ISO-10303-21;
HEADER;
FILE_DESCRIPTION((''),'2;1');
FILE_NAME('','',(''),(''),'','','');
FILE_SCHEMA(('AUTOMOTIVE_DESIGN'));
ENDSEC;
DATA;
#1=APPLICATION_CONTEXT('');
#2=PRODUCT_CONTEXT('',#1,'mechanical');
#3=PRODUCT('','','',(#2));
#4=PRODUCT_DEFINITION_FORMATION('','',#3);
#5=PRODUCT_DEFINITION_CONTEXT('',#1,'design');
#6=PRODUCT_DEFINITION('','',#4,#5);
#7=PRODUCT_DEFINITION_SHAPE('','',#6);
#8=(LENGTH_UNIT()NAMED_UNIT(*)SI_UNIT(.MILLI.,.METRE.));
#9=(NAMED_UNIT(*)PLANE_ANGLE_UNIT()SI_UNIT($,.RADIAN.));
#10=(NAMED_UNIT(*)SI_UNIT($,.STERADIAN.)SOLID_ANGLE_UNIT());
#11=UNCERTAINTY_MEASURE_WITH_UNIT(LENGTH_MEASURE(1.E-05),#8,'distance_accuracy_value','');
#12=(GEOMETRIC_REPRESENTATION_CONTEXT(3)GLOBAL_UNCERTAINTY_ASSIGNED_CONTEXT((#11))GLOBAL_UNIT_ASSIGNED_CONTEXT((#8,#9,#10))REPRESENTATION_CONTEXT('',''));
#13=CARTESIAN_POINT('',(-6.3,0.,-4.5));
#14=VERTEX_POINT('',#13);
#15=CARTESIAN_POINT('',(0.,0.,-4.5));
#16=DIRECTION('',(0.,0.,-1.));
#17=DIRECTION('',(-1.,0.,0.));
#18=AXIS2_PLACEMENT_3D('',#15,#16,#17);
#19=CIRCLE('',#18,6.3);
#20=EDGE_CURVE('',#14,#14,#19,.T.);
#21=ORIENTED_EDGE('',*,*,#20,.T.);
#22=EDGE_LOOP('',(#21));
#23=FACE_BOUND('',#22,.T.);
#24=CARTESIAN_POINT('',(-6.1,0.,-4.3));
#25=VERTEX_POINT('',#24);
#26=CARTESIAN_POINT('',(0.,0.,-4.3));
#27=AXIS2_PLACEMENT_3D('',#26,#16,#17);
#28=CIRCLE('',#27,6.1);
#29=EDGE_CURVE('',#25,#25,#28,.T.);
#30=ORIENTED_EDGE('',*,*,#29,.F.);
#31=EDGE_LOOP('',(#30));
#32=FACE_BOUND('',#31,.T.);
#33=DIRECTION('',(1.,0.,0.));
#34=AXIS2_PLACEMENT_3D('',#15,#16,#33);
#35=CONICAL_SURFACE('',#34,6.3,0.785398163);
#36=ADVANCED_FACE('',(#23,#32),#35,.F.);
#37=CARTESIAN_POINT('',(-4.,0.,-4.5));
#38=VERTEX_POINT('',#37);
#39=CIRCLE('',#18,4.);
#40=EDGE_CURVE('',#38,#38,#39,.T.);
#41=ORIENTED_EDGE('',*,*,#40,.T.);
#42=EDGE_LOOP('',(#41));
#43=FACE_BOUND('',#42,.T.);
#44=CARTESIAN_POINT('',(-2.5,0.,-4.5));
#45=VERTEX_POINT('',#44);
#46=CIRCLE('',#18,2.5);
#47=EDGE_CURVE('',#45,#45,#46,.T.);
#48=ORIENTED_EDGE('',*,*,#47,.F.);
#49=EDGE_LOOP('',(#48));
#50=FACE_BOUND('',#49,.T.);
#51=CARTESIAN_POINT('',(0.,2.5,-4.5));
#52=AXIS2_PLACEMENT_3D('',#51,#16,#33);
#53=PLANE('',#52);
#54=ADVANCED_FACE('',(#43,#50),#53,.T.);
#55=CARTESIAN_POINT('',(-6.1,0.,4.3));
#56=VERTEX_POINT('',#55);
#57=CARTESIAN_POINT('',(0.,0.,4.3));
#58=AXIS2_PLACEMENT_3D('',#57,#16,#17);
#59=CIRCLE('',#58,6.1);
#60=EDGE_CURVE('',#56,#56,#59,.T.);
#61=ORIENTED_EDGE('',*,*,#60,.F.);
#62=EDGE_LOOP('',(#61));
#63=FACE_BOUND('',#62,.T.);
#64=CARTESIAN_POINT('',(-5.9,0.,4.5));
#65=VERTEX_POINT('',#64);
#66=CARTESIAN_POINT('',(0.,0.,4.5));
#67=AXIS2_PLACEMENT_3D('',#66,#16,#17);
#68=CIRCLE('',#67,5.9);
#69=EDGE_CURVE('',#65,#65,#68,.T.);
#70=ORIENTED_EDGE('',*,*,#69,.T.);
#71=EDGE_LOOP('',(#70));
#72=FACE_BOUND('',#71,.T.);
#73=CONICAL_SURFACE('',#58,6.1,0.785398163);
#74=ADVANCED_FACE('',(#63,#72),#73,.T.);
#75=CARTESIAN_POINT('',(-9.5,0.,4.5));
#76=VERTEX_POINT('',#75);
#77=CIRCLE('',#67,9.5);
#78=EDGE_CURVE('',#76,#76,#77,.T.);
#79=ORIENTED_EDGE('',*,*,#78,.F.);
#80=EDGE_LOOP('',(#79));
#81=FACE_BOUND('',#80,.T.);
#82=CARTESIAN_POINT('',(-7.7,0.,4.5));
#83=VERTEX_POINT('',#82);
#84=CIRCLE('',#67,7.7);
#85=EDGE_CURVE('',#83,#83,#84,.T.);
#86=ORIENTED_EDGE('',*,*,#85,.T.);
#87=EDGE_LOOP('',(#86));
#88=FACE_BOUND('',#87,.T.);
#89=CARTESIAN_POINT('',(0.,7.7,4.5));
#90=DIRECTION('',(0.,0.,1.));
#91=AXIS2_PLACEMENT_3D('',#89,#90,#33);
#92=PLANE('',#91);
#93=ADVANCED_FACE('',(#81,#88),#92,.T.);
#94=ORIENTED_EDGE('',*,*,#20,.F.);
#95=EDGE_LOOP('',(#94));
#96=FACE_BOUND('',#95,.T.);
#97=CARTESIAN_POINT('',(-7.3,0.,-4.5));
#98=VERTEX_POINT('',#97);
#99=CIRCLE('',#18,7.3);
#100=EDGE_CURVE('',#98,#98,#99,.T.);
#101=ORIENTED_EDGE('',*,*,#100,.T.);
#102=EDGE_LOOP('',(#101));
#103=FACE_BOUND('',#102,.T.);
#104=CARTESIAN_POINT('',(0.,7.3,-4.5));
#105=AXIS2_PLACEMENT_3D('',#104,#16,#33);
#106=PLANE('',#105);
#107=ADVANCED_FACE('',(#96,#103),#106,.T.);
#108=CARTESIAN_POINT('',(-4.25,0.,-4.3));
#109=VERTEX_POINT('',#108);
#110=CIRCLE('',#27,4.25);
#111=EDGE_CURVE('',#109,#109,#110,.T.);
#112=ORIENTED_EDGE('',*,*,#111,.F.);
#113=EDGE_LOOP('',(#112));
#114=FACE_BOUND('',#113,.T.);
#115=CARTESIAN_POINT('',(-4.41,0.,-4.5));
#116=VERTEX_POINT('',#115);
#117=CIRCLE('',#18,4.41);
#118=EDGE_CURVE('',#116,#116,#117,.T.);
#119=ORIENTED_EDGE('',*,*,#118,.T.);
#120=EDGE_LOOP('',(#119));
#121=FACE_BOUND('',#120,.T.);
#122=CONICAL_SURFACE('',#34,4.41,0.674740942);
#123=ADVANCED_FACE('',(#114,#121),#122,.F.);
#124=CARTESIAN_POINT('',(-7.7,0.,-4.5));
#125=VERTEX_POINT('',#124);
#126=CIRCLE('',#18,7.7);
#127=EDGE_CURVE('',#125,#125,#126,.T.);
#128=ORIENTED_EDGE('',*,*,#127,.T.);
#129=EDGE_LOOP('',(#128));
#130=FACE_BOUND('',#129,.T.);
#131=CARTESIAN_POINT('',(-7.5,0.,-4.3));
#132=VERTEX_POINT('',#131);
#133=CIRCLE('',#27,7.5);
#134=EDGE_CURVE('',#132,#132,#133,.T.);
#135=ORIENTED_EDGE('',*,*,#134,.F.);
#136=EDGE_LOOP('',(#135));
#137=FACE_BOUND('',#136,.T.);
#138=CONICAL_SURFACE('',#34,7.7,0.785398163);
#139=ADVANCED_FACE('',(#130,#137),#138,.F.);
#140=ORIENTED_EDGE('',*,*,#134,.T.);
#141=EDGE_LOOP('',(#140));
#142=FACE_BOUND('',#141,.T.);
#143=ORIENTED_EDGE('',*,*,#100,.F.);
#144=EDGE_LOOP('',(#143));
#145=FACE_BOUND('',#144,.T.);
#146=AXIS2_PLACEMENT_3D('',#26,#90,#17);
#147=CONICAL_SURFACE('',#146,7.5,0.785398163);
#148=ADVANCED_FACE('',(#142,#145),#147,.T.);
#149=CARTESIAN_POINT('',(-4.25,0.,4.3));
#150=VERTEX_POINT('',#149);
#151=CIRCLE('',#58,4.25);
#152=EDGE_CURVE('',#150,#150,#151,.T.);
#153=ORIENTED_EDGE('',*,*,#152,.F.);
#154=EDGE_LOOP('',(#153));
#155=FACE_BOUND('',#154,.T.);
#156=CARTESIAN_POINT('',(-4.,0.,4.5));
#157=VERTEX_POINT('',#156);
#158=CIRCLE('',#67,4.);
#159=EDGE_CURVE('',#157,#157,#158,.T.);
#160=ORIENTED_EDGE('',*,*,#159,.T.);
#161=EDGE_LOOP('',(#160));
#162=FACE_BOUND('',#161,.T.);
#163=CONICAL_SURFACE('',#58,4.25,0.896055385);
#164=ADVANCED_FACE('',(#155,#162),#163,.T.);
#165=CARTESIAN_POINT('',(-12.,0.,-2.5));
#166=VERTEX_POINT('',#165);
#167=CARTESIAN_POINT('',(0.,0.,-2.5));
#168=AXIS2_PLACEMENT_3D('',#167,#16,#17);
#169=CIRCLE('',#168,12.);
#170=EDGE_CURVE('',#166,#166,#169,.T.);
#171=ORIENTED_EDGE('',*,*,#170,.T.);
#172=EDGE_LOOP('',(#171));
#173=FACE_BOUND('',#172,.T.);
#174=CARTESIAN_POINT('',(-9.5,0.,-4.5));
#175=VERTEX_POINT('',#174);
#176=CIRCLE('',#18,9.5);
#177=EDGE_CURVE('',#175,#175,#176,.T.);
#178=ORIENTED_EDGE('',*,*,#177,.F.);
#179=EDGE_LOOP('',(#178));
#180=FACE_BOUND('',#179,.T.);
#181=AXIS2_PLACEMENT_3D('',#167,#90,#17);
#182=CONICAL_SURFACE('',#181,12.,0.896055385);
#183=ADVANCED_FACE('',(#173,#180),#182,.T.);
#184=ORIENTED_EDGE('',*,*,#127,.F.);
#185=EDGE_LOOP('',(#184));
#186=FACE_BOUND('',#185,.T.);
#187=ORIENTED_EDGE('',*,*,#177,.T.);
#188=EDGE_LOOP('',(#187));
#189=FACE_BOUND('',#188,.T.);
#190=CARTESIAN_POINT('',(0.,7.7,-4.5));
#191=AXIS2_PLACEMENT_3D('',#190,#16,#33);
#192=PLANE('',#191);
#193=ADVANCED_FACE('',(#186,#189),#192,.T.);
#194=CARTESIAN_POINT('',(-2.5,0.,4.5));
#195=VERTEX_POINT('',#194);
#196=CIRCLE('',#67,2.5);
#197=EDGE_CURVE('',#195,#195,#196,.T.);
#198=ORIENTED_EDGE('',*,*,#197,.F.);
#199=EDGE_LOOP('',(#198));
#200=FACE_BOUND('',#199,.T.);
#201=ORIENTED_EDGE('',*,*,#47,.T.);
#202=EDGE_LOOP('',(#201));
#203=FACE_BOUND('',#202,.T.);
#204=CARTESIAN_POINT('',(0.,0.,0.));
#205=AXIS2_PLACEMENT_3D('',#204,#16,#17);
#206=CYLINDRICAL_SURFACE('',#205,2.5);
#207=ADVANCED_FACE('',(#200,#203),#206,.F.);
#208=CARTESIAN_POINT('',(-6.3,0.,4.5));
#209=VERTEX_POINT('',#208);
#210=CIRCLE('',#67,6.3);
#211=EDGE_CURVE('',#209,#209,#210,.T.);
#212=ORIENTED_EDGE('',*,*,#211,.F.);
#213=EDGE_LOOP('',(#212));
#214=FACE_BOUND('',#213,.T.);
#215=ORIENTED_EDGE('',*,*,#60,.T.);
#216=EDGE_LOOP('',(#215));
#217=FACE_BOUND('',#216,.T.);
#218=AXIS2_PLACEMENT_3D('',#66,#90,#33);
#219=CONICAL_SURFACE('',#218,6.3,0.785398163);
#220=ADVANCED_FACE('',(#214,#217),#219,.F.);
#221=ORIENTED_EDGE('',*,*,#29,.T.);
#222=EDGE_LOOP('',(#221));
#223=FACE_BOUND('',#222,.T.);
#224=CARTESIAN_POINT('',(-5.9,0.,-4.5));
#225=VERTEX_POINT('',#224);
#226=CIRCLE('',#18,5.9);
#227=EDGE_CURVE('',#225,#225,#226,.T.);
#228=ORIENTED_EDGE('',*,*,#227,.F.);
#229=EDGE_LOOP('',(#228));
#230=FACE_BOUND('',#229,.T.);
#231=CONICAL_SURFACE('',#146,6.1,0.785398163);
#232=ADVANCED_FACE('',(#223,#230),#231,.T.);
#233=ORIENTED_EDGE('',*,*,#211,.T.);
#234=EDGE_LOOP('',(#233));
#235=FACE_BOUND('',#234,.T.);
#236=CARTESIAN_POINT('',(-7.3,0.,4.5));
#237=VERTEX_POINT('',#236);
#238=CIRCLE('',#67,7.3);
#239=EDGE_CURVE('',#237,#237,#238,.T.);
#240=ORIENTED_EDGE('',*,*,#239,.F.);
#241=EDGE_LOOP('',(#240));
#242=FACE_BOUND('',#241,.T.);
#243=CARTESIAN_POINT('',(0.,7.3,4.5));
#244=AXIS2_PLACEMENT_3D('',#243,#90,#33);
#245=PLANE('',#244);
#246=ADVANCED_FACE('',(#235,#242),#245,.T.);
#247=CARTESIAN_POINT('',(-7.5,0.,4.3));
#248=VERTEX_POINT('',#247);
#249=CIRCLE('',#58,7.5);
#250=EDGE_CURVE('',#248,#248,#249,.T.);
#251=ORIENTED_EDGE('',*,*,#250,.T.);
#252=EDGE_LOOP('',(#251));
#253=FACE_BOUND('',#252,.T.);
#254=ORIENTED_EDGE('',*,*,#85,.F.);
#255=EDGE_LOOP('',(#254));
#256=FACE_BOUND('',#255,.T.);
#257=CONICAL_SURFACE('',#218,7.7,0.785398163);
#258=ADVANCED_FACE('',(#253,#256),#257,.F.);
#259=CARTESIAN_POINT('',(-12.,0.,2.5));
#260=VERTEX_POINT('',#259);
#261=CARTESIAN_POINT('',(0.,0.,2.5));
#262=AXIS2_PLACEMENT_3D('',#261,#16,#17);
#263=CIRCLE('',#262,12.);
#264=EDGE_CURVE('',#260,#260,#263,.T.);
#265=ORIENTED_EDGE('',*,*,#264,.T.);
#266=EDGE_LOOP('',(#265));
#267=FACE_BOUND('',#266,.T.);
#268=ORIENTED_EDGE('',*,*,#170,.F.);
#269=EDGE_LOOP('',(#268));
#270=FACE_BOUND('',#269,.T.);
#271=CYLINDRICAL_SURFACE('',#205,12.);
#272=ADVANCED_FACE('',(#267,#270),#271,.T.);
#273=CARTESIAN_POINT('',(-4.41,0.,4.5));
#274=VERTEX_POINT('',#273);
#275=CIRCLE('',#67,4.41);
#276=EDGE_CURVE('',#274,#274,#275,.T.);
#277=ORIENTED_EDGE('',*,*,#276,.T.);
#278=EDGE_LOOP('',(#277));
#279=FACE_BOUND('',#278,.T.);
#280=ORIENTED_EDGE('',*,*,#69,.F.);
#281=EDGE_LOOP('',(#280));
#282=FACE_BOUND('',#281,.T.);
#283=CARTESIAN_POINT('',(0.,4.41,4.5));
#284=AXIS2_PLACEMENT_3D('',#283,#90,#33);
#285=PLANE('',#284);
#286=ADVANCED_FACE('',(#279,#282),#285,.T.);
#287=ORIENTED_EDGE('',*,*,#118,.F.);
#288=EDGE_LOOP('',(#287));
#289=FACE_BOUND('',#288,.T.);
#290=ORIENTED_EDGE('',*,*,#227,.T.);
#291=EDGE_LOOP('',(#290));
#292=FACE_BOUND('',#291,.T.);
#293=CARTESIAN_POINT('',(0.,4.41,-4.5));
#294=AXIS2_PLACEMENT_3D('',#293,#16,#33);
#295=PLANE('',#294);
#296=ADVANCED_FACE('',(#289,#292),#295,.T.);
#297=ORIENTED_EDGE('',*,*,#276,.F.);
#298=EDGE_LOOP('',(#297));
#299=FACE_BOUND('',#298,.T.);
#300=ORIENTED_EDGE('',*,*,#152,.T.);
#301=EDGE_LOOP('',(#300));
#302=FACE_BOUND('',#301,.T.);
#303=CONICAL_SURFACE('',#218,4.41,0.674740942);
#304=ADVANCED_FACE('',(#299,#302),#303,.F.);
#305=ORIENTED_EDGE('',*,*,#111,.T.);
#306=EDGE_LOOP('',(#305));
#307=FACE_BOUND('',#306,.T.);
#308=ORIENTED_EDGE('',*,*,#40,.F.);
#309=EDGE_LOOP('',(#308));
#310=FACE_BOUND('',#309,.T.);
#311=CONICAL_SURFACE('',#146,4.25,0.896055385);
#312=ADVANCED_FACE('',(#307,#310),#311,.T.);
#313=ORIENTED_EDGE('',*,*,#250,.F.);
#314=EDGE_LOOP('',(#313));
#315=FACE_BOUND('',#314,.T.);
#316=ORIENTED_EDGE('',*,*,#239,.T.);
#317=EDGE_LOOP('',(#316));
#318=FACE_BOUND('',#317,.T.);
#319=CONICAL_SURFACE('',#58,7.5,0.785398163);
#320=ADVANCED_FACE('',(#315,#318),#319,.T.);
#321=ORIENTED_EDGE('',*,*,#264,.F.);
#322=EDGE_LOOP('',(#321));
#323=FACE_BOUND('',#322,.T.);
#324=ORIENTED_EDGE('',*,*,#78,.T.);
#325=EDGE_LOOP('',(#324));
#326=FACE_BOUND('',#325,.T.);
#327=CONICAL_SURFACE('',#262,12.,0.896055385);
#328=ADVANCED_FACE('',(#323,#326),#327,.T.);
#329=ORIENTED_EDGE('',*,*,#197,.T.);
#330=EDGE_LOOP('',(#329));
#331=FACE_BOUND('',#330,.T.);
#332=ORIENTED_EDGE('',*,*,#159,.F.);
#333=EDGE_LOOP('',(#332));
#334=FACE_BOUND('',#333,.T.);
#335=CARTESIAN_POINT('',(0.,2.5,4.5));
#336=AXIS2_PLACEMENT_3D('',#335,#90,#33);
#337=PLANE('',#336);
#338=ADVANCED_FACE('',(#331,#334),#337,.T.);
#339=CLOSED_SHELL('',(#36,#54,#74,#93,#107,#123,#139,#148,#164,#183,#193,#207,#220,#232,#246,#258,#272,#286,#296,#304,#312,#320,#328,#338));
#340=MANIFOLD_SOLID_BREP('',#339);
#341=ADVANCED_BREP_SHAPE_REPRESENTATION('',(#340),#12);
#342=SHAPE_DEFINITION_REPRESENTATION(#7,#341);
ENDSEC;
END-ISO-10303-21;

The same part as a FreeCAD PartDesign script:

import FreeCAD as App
import Part
import Sketcher
from FreeCAD import Vector


def add_polygon(sketch, points):
    """Adds a closed chain of lines whose ends are joined by coincident constraints."""
    first, n = sketch.GeometryCount, len(points)
    for a, b in zip(points, points[1:] + points[:1]):
        sketch.addGeometry(Part.LineSegment(App.Vector(*a, 0), App.Vector(*b, 0)), False)
    for i in range(n):
        sketch.addConstraint(Sketcher.Constraint("Coincident", first + i, 2, first + (i + 1) % n, 1))

doc = App.newDocument("Part")
body = doc.addObject("PartDesign::Body", "Body")

# Sketch on YZ plane
sketch1 = doc.addObject("Sketcher::SketchObject", "Sketch")
body.addObject(sketch1)
sketch1.AttachmentSupport = (doc.YZ_Plane, [""])
sketch1.MapMode = "FlatFace"
add_polygon(sketch1, [(7.3, 4.5), (6.3, 4.5), (6.1, 4.3), (5.9, 4.5), (4.41, 4.5), (4.25, 4.3), (4, 4.5), (2.5, 4.5), (2.5, 0), (12, 0), (12, 2.5), (9.5, 4.5), (7.7, 4.5), (7.5, 4.3)])  # lines 0-13
sketch1.addConstraint(Sketcher.Constraint("Horizontal", 0))
sketch1.addConstraint(Sketcher.Constraint("Horizontal", 3))
sketch1.addConstraint(Sketcher.Constraint("Horizontal", 6))
sketch1.addConstraint(Sketcher.Constraint("Vertical", 7))
sketch1.addConstraint(Sketcher.Constraint("Horizontal", 8))
sketch1.addConstraint(Sketcher.Constraint("Vertical", 9))
sketch1.addConstraint(Sketcher.Constraint("Horizontal", 11))
sketch1.addConstraint(Sketcher.Constraint("PointOnObject", 7, 2, -1))
sketch1.addConstraint(Sketcher.Constraint("Perpendicular", 1, 2))
sketch1.addConstraint(Sketcher.Constraint("Perpendicular", 4, 5))
sketch1.addConstraint(Sketcher.Constraint("Parallel", 5, 10))
sketch1.addConstraint(Sketcher.Constraint("Perpendicular", 2, 12))
sketch1.addConstraint(Sketcher.Constraint("Perpendicular", 12, 13))
sketch1.addConstraint(Sketcher.Constraint("Horizontal", 0, 2, 2, 2))
sketch1.addConstraint(Sketcher.Constraint("Horizontal", 1, 2, 4, 2))
sketch1.addConstraint(Sketcher.Constraint("Horizontal", 3, 2, 5, 2))
sketch1.addConstraint(Sketcher.Constraint("Horizontal", 6, 2, 10, 2))
sketch1.addConstraint(Sketcher.Constraint("Horizontal", 4, 2, 12, 2))
sketch1.addConstraint(Sketcher.Constraint("Equal", 1, 2))
sketch1.addConstraint(Sketcher.Constraint("DistanceX", 0, 2, 0, 1, 1.0))
sketch1.addConstraint(Sketcher.Constraint("DistanceX", 6, 2, 6, 1, 1.5))
sketch1.addConstraint(Sketcher.Constraint("DistanceX", 8, 1, 8, 2, 9.5))
sketch1.addConstraint(Sketcher.Constraint("DistanceX", 11, 2, 11, 1, 1.8))
sketch1.addConstraint(Sketcher.Constraint("DistanceY", 7, 2, 7, 1, 4.5))
sketch1.addConstraint(Sketcher.Constraint("DistanceY", 9, 1, 9, 2, 2.5))
sketch1.addConstraint(Sketcher.Constraint("DistanceX", -1, 1, 5, 2, 4.0))
sketch1.addConstraint(Sketcher.Constraint("DistanceX", 12, 2, 10, 2, 2.0))
sketch1.addConstraint(Sketcher.Constraint("DistanceX", 3, 2, 3, 1, 1.49))
revolution = doc.addObject("PartDesign::Revolution", "Revolution")
body.addObject(revolution)
revolution.Profile = sketch1
revolution.ReferenceAxis = (sketch1, ["V_Axis"])
revolution.Angle = 360
body2 = doc.addObject("PartDesign::Body", "Body001")
doc.recompute()

body2.BaseFeature = body
doc.recompute()

mirroring = doc.addObject("Part::Mirroring", "Mirroring")
mirroring.Source = body
mirroring.Base = Vector(0, 2.5, 0)
mirroring.Normal = Vector(0, 0, -1)
body3 = doc.addObject("PartDesign::Body", "Body002")
body3.BaseFeature = mirroring
boolean = doc.addObject("PartDesign::Boolean", "Boolean")
body2.addObject(boolean)
boolean.Type = "Fuse"
boolean.addObjects([body3])
doc.recompute()
mirroring.Visibility = False

doc.recompute()
